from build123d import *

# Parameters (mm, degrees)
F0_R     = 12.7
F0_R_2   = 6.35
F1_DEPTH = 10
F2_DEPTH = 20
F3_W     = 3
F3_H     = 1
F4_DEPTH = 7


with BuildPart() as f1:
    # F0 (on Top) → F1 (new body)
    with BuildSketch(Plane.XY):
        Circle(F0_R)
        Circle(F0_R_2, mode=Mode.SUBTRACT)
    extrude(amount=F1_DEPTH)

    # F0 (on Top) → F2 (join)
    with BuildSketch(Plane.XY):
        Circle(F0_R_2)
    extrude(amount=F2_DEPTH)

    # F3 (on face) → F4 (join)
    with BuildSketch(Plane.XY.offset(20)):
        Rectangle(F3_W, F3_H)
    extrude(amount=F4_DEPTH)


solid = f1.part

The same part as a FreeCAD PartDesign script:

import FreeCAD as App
import Part
import Sketcher

V = App.Vector

doc = App.newDocument("Part")
body = doc.addObject("PartDesign::Body", "Body")

# Sketch on XY plane
sketch1 = body.newObject("Sketcher::SketchObject", "Sketch")
sketch1.AttachmentSupport = (doc.getObject("XY_Plane"), [""])
sketch1.MapMode = "FlatFace"
sketch1.addGeometry([
    Part.Circle(V(0, 0, 0), V(0, 0, 1), 13),
    Part.Circle(V(0, 0, 0), V(0, 0, 1), 6),
], False)
sketch1.addConstraint([
    Sketcher.Constraint("Coincident", 0, 3, -1, 1),
    Sketcher.Constraint("Coincident", 1, 3, -1, 1),
    Sketcher.Constraint("Diameter", 0, 25.4),
    Sketcher.Constraint("Diameter", 1, 12.7),
])
pad1 = body.newObject("PartDesign::Pad", "Pad")
pad1.Profile = sketch1
pad1.Length = 10

# Sketch on XY plane
sketch2 = body.newObject("Sketcher::SketchObject", "Sketch001")
sketch2.AttachmentSupport = (doc.getObject("XY_Plane"), [""])
sketch2.MapMode = "FlatFace"
sketch2.addGeometry(Part.Circle(V(0, 0, 0), V(0, 0, 1), 6), False)
sketch2.addConstraint([
    Sketcher.Constraint("Coincident", 0, 3, -1, 1),
    Sketcher.Constraint("Diameter", 0, 12.7),
])
pad2 = body.newObject("PartDesign::Pad", "Pad001")
pad2.Profile = sketch2
pad2.Length = 20

# Sketch on XY plane
sketch3 = body.newObject("Sketcher::SketchObject", "Sketch002")
sketch3.AttachmentSupport = (doc.getObject("XY_Plane"), [""])
sketch3.MapMode = "FlatFace"
sketch3.AttachmentOffset = App.Placement(V(0, 0, 20), App.Rotation())
sketch3.addGeometry([
    Part.LineSegment(V(-1.5, 0.5, 0), V(-1.5, -0.5, 0)),
    Part.LineSegment(V(-1.5, -0.5, 0), V(1.5, -0.5, 0)),
    Part.LineSegment(V(1.5, -0.5, 0), V(1.5, 0.5, 0)),
    Part.LineSegment(V(1.5, 0.5, 0), V(-1.5, 0.5, 0)),
], False)
sketch3.addConstraint([
    Sketcher.Constraint("Coincident", 0, 2, 1, 1),
    Sketcher.Constraint("Coincident", 1, 2, 2, 1),
    Sketcher.Constraint("Coincident", 2, 2, 3, 1),
    Sketcher.Constraint("Coincident", 3, 2, 0, 1),
    Sketcher.Constraint("Vertical", 0),
    Sketcher.Constraint("Horizontal", 1),
    Sketcher.Constraint("Vertical", 2),
    Sketcher.Constraint("Horizontal", 3),
    Sketcher.Constraint("Symmetric", 0, 2, 2, 2, -1, 1),
    Sketcher.Constraint("DistanceX", 1, 1, 1, 2, 3.0),
    Sketcher.Constraint("DistanceY", 0, 2, 0, 1, 1.0),
])
pad3 = body.newObject("PartDesign::Pad", "Pad002")
pad3.Profile = sketch3
pad3.Length = 7

doc.recompute()
